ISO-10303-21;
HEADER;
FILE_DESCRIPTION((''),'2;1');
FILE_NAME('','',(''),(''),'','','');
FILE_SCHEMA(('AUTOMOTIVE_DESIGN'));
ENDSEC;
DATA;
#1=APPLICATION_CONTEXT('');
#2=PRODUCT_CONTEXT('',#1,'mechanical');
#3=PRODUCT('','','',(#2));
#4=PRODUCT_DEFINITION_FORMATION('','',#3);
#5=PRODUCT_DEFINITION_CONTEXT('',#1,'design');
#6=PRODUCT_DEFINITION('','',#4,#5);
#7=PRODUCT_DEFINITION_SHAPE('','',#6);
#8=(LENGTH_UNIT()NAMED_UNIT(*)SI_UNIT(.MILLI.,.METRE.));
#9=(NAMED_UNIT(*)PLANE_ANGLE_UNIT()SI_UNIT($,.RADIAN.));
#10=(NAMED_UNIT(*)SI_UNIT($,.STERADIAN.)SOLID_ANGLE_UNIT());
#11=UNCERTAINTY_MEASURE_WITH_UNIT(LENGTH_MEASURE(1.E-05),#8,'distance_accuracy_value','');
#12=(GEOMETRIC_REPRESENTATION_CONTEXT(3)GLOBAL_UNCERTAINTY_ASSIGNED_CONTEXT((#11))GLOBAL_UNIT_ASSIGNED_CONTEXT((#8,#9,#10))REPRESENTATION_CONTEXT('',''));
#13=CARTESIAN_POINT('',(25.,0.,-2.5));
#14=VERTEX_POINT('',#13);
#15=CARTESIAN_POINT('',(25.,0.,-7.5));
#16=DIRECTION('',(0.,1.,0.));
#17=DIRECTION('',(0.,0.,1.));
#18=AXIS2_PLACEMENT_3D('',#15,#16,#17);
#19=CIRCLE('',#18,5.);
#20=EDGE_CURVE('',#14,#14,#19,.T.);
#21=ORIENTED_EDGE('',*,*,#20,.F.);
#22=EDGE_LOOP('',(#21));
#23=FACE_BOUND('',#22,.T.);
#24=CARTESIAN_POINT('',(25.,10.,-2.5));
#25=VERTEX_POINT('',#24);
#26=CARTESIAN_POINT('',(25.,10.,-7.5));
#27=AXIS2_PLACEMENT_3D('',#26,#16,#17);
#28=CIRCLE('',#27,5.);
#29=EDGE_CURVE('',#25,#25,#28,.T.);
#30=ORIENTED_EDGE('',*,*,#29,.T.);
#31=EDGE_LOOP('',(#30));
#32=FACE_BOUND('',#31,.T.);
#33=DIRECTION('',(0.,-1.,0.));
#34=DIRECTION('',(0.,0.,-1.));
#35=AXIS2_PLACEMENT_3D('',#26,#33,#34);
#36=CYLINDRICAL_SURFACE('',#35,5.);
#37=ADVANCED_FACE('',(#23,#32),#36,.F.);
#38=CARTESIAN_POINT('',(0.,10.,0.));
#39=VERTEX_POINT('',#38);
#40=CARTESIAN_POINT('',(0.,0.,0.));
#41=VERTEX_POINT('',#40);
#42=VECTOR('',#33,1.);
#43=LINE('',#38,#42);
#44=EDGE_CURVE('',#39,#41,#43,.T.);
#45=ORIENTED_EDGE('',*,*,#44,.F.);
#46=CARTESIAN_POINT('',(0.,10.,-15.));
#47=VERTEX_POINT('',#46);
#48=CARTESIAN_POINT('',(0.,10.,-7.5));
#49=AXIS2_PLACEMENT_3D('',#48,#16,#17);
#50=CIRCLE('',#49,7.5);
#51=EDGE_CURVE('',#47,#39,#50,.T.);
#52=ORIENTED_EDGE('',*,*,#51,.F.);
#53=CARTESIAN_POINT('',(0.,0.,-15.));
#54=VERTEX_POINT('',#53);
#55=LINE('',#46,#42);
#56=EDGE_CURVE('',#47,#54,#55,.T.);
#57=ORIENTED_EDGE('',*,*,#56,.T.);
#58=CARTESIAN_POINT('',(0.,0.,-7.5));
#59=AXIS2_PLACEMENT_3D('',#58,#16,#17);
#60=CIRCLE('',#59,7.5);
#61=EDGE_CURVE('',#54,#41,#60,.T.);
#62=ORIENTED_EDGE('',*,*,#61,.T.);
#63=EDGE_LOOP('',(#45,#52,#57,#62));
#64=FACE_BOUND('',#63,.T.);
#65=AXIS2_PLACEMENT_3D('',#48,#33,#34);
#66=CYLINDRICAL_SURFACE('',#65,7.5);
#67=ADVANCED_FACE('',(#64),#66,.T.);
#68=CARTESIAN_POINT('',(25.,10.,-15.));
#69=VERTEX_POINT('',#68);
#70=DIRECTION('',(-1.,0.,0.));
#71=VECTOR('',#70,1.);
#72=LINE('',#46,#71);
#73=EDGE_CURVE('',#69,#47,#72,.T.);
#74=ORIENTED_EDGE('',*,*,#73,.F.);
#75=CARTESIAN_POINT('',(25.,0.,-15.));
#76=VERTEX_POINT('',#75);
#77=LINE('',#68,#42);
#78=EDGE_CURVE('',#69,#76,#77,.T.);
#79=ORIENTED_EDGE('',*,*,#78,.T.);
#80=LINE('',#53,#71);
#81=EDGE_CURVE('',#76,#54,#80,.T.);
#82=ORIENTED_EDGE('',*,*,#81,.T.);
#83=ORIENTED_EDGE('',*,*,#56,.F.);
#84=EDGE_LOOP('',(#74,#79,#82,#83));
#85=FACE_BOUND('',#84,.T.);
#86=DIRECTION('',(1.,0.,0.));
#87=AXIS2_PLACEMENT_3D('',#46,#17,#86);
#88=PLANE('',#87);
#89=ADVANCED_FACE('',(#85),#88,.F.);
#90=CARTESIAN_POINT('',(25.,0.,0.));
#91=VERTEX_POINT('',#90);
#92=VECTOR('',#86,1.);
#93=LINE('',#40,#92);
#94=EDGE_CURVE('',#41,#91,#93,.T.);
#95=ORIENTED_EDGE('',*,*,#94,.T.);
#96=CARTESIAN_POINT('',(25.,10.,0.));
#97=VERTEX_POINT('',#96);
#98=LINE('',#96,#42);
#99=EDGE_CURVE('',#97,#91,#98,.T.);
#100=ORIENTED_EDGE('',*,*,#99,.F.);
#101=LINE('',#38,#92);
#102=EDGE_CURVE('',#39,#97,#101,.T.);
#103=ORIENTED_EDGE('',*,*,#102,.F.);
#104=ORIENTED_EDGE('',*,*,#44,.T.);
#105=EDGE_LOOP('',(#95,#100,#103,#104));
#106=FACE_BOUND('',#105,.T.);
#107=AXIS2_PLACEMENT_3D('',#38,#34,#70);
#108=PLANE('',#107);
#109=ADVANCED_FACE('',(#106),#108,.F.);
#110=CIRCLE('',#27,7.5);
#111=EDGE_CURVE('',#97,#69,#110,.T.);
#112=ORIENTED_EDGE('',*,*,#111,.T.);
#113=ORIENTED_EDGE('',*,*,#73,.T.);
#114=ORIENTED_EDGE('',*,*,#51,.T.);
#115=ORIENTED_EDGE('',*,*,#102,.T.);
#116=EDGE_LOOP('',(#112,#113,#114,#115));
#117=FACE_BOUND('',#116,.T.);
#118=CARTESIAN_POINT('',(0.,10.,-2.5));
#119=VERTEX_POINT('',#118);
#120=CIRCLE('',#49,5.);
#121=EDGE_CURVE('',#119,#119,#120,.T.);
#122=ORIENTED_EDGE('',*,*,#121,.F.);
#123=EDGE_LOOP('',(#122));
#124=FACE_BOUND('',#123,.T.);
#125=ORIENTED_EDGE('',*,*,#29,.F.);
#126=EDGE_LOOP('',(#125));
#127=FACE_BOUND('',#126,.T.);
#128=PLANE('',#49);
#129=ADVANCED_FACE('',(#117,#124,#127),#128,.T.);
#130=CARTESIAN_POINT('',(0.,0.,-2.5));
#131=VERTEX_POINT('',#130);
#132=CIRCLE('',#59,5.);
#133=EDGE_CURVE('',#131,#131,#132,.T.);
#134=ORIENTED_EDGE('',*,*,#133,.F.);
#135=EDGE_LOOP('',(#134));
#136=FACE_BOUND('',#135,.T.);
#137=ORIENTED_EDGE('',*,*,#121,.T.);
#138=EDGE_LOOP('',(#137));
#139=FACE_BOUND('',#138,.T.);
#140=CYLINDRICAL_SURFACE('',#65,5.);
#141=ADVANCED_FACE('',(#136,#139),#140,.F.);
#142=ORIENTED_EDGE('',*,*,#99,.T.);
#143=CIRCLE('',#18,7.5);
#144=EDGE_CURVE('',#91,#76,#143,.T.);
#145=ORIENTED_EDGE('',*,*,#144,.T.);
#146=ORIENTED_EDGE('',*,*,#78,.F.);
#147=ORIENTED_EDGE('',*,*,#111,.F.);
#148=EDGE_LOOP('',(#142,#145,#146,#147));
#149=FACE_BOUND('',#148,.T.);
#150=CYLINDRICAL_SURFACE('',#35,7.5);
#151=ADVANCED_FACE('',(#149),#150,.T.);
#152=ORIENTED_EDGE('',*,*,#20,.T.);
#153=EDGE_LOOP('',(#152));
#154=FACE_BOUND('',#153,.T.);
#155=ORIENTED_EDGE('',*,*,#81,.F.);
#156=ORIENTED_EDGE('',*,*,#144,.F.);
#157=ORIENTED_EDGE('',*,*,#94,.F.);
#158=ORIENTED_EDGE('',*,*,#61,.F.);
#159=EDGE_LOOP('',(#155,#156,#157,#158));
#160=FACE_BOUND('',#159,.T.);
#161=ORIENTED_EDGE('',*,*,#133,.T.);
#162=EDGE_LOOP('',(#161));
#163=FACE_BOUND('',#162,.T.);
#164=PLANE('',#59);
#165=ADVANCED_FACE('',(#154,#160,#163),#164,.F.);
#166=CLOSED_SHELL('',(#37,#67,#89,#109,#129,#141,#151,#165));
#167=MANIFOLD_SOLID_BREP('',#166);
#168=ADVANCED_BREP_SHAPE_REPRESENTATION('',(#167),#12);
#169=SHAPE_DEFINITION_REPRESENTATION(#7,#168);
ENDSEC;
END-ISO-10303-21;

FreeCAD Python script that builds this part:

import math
import FreeCAD as App
import Part
import Sketcher

doc = App.newDocument("Part")
body = doc.addObject("PartDesign::Body", "Body")

sketch1 = body.newObject("Sketcher::SketchObject", "Sketch")
sketch1.AttachmentSupport = (doc.getObject("XZ_Plane"), [""])
sketch1.MapMode = "FlatFace"
sketch1.addGeometry([
    Part.LineSegment(App.Vector(0, 0, 0), App.Vector(25, 0, 0)),
    Part.ArcOfCircle(Part.Circle(App.Vector(25, -8, 0), App.Vector(0, 0, 1), 8), math.radians(-90), math.radians(90)),
    Part.LineSegment(App.Vector(25, -15, 0), App.Vector(0, -15, 0)),
    Part.ArcOfCircle(Part.Circle(App.Vector(0, -8, 0), App.Vector(0, 0, 1), 8), math.radians(90), math.radians(270)),
    Part.Circle(App.Vector(0, -8, 0), App.Vector(0, 0, 1), 5),
    Part.Circle(App.Vector(25, -8, 0), App.Vector(0, 0, 1), 5),
], False)
sketch1.addConstraint([
    Sketcher.Constraint("Tangent", 0, 2, 1, 2),
    Sketcher.Constraint("Tangent", 1, 1, 2, 1),
    Sketcher.Constraint("Tangent", 2, 2, 3, 2),
    Sketcher.Constraint("Tangent", 3, 1, 0, 1),
    Sketcher.Constraint("Horizontal", 0),
    Sketcher.Constraint("Horizontal", 2),
    Sketcher.Constraint("Coincident", 3, 1, -1, 1),
    Sketcher.Constraint("Coincident", 4, 3, 3, 3),
    Sketcher.Constraint("Coincident", 5, 3, 1, 3),
    Sketcher.Constraint("Equal", 4, 5),
    Sketcher.Constraint("Diameter", 4, 10.0),
    Sketcher.Constraint("Radius", 1, 7.5),
    Sketcher.Constraint("DistanceX", 0, 1, 0, 2, 25.0),
])
pad1 = body.newObject("PartDesign::Pad", "Pad")
pad1.Profile = sketch1
pad1.Length = 10
pad1.Reversed = True

doc.recompute()
